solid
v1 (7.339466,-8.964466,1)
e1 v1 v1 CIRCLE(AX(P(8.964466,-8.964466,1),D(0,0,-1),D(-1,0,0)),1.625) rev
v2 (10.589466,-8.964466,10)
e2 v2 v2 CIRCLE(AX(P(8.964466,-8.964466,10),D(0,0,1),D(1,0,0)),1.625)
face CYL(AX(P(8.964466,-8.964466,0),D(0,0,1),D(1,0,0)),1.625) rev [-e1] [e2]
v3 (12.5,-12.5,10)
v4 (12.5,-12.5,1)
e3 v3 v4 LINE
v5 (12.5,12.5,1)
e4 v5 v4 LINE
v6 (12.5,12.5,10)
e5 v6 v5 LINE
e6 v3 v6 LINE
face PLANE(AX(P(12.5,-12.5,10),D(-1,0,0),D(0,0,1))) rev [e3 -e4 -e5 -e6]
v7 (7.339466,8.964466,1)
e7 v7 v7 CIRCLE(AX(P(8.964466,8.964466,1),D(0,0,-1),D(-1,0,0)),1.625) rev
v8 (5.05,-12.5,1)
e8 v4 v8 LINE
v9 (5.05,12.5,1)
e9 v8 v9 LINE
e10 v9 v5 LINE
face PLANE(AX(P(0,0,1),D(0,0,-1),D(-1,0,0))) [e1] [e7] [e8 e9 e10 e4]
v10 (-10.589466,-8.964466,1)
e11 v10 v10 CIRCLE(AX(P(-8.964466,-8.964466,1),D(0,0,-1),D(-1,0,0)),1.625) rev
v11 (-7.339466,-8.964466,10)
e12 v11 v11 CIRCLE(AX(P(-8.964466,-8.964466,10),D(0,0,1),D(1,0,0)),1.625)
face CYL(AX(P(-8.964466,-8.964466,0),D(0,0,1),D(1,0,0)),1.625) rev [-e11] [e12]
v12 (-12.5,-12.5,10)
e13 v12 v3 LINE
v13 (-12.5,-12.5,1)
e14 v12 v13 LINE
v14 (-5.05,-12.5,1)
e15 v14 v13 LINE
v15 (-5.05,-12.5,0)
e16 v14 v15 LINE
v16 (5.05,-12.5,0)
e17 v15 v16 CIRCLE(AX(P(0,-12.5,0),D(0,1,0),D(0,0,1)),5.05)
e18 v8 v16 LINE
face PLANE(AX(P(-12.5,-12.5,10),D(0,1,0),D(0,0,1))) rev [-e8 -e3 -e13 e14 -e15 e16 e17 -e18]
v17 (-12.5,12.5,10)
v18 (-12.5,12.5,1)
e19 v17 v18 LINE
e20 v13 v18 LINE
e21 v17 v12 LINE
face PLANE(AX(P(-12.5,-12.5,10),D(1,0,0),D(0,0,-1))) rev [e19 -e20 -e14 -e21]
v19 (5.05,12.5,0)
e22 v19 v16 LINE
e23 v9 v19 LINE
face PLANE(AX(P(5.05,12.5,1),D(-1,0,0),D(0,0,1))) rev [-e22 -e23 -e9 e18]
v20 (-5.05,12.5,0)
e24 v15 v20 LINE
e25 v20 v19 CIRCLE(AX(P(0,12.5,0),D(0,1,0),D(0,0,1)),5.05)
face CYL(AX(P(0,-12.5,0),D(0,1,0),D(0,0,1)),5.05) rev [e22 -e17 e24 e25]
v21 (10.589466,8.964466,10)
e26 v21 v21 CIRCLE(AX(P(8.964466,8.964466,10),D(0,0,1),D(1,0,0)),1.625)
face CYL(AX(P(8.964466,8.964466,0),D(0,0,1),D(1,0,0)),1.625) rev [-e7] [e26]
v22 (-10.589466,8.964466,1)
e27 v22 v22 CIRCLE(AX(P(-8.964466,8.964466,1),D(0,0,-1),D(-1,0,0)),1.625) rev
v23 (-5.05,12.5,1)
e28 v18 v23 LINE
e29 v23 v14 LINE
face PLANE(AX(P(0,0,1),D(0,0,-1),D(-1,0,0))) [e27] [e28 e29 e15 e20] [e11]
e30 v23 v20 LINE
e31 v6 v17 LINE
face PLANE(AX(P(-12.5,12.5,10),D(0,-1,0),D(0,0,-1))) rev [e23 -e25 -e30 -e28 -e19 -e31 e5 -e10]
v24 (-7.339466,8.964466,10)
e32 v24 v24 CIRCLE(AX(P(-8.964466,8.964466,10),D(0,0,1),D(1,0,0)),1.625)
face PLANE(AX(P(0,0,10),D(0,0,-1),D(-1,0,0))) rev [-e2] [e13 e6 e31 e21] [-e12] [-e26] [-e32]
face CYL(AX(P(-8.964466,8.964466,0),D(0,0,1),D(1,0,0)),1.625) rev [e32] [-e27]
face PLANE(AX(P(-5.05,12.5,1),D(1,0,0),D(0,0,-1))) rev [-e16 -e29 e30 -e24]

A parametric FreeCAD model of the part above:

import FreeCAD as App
import Part
import Sketcher

V = App.Vector
Q = App.Units.Quantity

doc = App.newDocument("Part")
body = doc.addObject("PartDesign::Body", "Body")

# Sketch on XY plane
sketch1 = body.newObject("Sketcher::SketchObject", "Sketch")
sketch1.AttachmentSupport = (doc.getObject("XY_Plane"), [""])
sketch1.MapMode = "FlatFace"
sketch1.addGeometry(Part.LineSegment(V(-12, 12, 0), V(-12, -12, 0)), False)
sketch1.addGeometry(Part.LineSegment(V(-12, -12, 0), V(12, -12, 0)), False)
sketch1.addGeometry(Part.LineSegment(V(12, -12, 0), V(12, 12, 0)), False)
sketch1.addGeometry(Part.LineSegment(V(12, 12, 0), V(-12, 12, 0)), False)
sketch1.addConstraint(Sketcher.Constraint("Coincident", 0, 2, 1, 1))
sketch1.addConstraint(Sketcher.Constraint("Coincident", 1, 2, 2, 1))
sketch1.addConstraint(Sketcher.Constraint("Coincident", 2, 2, 3, 1))
sketch1.addConstraint(Sketcher.Constraint("Coincident", 3, 2, 0, 1))
sketch1.addConstraint(Sketcher.Constraint("Vertical", 0))
sketch1.addConstraint(Sketcher.Constraint("Horizontal", 1))
sketch1.addConstraint(Sketcher.Constraint("Vertical", 2))
sketch1.addConstraint(Sketcher.Constraint("Horizontal", 3))
sketch1.addConstraint(Sketcher.Constraint("Symmetric", 0, 2, 2, 2, -1, 1))
sketch1.addConstraint(Sketcher.Constraint("Equal", 3, 0))
sketch1.addConstraint(Sketcher.Constraint("DistanceX", 1, 1, 1, 2, Q("25 mm")))
pad1 = body.newObject("PartDesign::Pad", "Pad")
pad1.Profile = sketch1
pad1.Length = 10

# Sketch on XZ plane
sketch2 = body.newObject("Sketcher::SketchObject", "Sketch001")
sketch2.AttachmentSupport = (doc.getObject("XZ_Plane"), [""])
sketch2.MapMode = "FlatFace"
sketch2.AttachmentOffset = App.Placement(V(0, 0, -12.5), App.Rotation())
sketch2.addGeometry(Part.Circle(V(0, 0, 0), V(0, 0, 1), 5), False)
sketch2.addConstraint(Sketcher.Constraint("Coincident", 0, 3, -1, 1))
sketch2.addConstraint(Sketcher.Constraint("Diameter", 0, Q("10.1 mm")))
pocket1 = body.newObject("PartDesign::Pocket", "Pocket")
pocket1.Profile = sketch2
pocket1.Type = "ThroughAll"
pocket1.Reversed = True

# Sketch on XY plane
sketch3 = body.newObject("Sketcher::SketchObject", "Sketch002")
sketch3.AttachmentSupport = (doc.getObject("XY_Plane"), [""])
sketch3.MapMode = "FlatFace"
sketch3.AttachmentOffset = App.Placement(V(0, 0, 10), App.Rotation())
sketch3.addGeometry(Part.Circle(V(-9, 9, 0), V(0, 0, 1), 1.6), False)
sketch3.addGeometry(Part.Circle(V(9, 9, 0), V(0, 0, 1), 1.6), False)
sketch3.addGeometry(Part.Circle(V(9, -9, 0), V(0, 0, 1), 1.6), False)
sketch3.addGeometry(Part.Circle(V(-9, -9, 0), V(0, 0, 1), 1.6), False)
sketch3.addConstraint(Sketcher.Constraint("Equal", 0, 1))
sketch3.addConstraint(Sketcher.Constraint("Equal", 1, 2))
sketch3.addConstraint(Sketcher.Constraint("Equal", 2, 3))
sketch3.addConstraint(Sketcher.Constraint("Symmetric", 0, 3, 2, 3, -1, 1))
sketch3.addConstraint(Sketcher.Constraint("Symmetric", 1, 3, 3, 3, -1, 1))
sketch3.addConstraint(Sketcher.Constraint("Symmetric", 0, 3, 1, 3, -2))
sketch3.addConstraint(Sketcher.Constraint("Diameter", 0, Q("3.25 mm")))
sketch3.addConstraint(Sketcher.Constraint("DistanceX", 0, 3, -1, 1, Q("8.964466 mm")))
sketch3.addConstraint(Sketcher.Constraint("DistanceY", -1, 1, 0, 3, Q("8.964466 mm")))
pocket2 = body.newObject("PartDesign::Pocket", "Pocket001")
pocket2.Profile = sketch3
pocket2.Type = "ThroughAll"

# Sketch on XY plane
sketch4 = body.newObject("Sketcher::SketchObject", "Sketch003")
sketch4.AttachmentSupport = (doc.getObject("XY_Plane"), [""])
sketch4.MapMode = "FlatFace"
sketch4.addGeometry(Part.LineSegment(V(12, 12, 0), V(12, -12, 0)), False)
sketch4.addGeometry(Part.LineSegment(V(12, -12, 0), V(5, -12, 0)), False)
sketch4.addGeometry(Part.LineSegment(V(5, -12, 0), V(5, 12, 0)), False)
sketch4.addGeometry(Part.LineSegment(V(5, 12, 0), V(12, 12, 0)), False)
sketch4.addGeometry(Part.LineSegment(V(-5, 12, 0), V(-5, -12, 0)), False)
sketch4.addGeometry(Part.LineSegment(V(-5, -12, 0), V(-12, -12, 0)), False)
sketch4.addGeometry(Part.LineSegment(V(-12, -12, 0), V(-12, 12, 0)), False)
sketch4.addGeometry(Part.LineSegment(V(-12, 12, 0), V(-5, 12, 0)), False)
sketch4.addConstraint(Sketcher.Constraint("Coincident", 0, 2, 1, 1))
sketch4.addConstraint(Sketcher.Constraint("Coincident", 1, 2, 2, 1))
sketch4.addConstraint(Sketcher.Constraint("Coincident", 2, 2, 3, 1))
sketch4.addConstraint(Sketcher.Constraint("Coincident", 3, 2, 0, 1))
sketch4.addConstraint(Sketcher.Constraint("Coincident", 4, 2, 5, 1))
sketch4.addConstraint(Sketcher.Constraint("Coincident", 5, 2, 6, 1))
sketch4.addConstraint(Sketcher.Constraint("Coincident", 6, 2, 7, 1))
sketch4.addConstraint(Sketcher.Constraint("Coincident", 7, 2, 4, 1))
sketch4.addConstraint(Sketcher.Constraint("Vertical", 0))
sketch4.addConstraint(Sketcher.Constraint("Horizontal", 1))
sketch4.addConstraint(Sketcher.Constraint("Vertical", 2))
sketch4.addConstraint(Sketcher.Constraint("Horizontal", 3))
sketch4.addConstraint(Sketcher.Constraint("Vertical", 4))
sketch4.addConstraint(Sketcher.Constraint("Horizontal", 5))
sketch4.addConstraint(Sketcher.Constraint("Vertical", 6))
sketch4.addConstraint(Sketcher.Constraint("Horizontal", 7))
sketch4.addConstraint(Sketcher.Constraint("Symmetric", 2, 2, 4, 2, -1, 1))
sketch4.addConstraint(Sketcher.Constraint("Symmetric", 0, 2, 6, 2, -1, 1))
sketch4.addConstraint(Sketcher.Constraint("Horizontal", 1, 2, 4, 2))
sketch4.addConstraint(Sketcher.Constraint("DistanceY", 0, 2, 0, 1, Q("25 mm")))
sketch4.addConstraint(Sketcher.Constraint("DistanceX", 5, 2, 0, 2, Q("25 mm")))
sketch4.addConstraint(Sketcher.Constraint("DistanceX", 1, 2, 1, 1, Q("7.45 mm")))
pocket3 = body.newObject("PartDesign::Pocket", "Pocket002")
pocket3.Profile = sketch4
pocket3.Length = 1
pocket3.Reversed = True

doc.recompute()
